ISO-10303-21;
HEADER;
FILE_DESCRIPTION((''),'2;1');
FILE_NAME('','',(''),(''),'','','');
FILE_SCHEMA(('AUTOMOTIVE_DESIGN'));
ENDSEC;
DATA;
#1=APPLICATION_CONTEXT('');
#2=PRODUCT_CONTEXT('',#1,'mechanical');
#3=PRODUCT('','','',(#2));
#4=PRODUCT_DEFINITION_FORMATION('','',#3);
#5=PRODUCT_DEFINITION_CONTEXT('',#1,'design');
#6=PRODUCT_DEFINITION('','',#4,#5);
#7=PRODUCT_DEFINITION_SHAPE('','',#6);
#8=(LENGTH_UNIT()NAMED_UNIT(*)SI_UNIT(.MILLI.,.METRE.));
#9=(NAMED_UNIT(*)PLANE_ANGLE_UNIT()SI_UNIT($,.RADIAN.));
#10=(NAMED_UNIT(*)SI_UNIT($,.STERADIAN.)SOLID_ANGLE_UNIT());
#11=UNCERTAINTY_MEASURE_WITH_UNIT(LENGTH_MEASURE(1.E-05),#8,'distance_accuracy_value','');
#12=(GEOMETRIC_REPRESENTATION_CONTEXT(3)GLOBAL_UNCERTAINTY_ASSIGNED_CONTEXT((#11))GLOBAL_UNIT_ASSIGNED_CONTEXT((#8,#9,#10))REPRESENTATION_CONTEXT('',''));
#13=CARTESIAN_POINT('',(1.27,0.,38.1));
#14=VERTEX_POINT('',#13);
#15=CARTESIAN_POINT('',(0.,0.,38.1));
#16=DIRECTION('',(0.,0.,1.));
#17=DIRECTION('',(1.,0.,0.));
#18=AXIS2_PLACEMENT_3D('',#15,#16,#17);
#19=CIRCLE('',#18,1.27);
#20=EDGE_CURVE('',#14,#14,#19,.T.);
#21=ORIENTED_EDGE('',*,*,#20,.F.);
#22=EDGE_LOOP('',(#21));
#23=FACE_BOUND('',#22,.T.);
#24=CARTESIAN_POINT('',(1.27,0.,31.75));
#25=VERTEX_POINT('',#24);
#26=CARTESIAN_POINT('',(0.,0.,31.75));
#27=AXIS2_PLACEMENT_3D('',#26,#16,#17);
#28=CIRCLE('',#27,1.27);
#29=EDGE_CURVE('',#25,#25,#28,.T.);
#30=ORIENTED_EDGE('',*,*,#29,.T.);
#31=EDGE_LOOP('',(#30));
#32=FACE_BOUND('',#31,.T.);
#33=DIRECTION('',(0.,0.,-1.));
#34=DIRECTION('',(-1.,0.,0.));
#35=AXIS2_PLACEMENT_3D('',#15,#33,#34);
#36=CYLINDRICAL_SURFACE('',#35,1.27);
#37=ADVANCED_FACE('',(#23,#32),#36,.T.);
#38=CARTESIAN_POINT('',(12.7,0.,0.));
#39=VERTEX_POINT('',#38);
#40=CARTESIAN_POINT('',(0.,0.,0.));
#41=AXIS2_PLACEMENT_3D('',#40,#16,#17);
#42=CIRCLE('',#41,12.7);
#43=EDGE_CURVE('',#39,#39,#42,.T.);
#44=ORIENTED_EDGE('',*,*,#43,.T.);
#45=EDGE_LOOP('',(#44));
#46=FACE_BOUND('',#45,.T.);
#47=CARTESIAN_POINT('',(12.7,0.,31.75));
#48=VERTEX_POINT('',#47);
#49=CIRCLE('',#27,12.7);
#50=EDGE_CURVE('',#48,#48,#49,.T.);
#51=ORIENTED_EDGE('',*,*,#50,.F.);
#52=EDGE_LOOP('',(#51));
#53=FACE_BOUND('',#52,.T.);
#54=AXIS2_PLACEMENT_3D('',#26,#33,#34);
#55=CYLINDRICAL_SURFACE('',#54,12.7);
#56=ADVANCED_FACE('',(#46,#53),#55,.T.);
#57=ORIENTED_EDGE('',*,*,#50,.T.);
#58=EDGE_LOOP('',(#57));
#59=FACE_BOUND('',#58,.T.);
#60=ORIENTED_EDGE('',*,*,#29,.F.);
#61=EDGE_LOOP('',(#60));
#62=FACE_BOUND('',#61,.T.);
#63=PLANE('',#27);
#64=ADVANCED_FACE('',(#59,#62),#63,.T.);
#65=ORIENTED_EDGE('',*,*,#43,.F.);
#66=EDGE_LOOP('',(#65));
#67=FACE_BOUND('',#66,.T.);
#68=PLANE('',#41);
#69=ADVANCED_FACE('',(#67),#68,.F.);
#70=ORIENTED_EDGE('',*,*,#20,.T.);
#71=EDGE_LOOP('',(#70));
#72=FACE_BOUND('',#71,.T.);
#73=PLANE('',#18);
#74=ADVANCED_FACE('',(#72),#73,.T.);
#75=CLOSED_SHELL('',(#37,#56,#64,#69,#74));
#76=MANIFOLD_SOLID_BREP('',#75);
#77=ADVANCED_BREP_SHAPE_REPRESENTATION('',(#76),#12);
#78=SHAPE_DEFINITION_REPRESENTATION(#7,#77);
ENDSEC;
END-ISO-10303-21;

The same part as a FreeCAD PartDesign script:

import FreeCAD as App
import Part
import Sketcher
Q = App.Units.Quantity

doc = App.newDocument("Part")
body = doc.addObject("PartDesign::Body", "Body")

# Sketch on XY plane
sketch1 = body.newObject("Sketcher::SketchObject", "Sketch")
sketch1.AttachmentSupport = (doc.getObject("XY_Plane"), [""])
sketch1.MapMode = "FlatFace"
sketch1.addGeometry(Part.Circle(App.Vector(0, 0, 0), App.Vector(0, 0, 1), 13), False)
sketch1.addConstraint(Sketcher.Constraint("Coincident", 0, 3, -1, 1))
sketch1.addConstraint(Sketcher.Constraint("Diameter", 0, Q("1 in")))
pad1 = body.newObject("PartDesign::Pad", "Pad")
pad1.Profile = sketch1
pad1.Length = Q("1.25 in")

# Sketch on XY plane
sketch2 = body.newObject("Sketcher::SketchObject", "Sketch001")
sketch2.AttachmentSupport = (doc.getObject("XY_Plane"), [""])
sketch2.MapMode = "FlatFace"
sketch2.AttachmentOffset = App.Placement(App.Vector(0, 0, 1.25 * 25.4), App.Rotation())
sketch2.addGeometry(Part.Circle(App.Vector(0, 0, 0), App.Vector(0, 0, 1), 1.3), False)
sketch2.addConstraint(Sketcher.Constraint("Coincident", 0, 3, -1, 1))
sketch2.addConstraint(Sketcher.Constraint("Diameter", 0, Q("0.1 in")))
pad2 = body.newObject("PartDesign::Pad", "Pad001")
pad2.Profile = sketch2
pad2.Length = Q("0.25 in")

doc.recompute()
